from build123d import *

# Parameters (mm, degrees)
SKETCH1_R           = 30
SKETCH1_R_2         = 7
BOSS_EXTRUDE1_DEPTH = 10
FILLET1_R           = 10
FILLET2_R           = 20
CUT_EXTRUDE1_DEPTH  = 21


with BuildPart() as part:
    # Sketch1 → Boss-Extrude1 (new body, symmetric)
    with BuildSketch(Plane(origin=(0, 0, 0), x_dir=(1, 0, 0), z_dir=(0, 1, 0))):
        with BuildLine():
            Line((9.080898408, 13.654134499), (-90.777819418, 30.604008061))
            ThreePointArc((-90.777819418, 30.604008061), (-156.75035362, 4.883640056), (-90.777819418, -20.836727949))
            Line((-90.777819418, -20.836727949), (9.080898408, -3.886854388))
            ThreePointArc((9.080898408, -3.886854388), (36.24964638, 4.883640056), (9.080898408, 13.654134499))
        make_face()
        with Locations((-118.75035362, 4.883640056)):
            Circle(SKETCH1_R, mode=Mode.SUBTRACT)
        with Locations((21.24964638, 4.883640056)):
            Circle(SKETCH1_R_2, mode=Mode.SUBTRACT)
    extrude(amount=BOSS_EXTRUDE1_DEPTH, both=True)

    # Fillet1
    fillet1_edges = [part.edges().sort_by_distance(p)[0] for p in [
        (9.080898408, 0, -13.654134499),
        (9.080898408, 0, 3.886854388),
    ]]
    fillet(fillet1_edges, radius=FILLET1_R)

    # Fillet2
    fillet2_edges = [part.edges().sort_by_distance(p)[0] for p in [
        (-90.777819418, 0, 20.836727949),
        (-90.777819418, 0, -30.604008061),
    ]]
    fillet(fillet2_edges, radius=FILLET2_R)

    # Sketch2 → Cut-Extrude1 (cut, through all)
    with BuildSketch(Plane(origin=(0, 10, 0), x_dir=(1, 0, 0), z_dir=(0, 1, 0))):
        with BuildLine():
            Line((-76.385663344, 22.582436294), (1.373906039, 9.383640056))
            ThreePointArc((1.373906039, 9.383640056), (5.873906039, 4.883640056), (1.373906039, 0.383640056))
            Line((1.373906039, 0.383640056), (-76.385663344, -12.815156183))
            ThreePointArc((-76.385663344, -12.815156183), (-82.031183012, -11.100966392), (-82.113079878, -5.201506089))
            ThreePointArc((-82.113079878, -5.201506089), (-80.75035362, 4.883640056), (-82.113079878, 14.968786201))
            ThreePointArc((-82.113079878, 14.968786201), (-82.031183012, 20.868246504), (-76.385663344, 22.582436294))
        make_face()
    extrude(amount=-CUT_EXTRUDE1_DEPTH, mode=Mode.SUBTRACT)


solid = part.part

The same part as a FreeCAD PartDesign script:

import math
import FreeCAD as App
import Part
import Sketcher

V = App.Vector


def edges_at(feature, points):
    """Names of the edges that pass closest to the given points."""
    edges = feature.Shape.Edges
    near = lambda p: min(range(len(edges)), key=lambda i: edges[i].distToShape(Part.Vertex(*p))[0])
    return sorted({f"Edge{near(p) + 1}" for p in points})

doc = App.newDocument("Part")
body = doc.addObject("PartDesign::Body", "Body")

sketch1 = body.newObject("Sketcher::SketchObject", "Sketch")
sketch1.AttachmentSupport = (doc.getObject("XZ_Plane"), [""])
sketch1.MapMode = "FlatFace"
sketch1.addGeometry([
    Part.LineSegment(V(9.080898, -13.654134, 0), V(-90.777819, -30.604008, 0)),
    Part.ArcOfCircle(Part.Circle(V(-118.750354, -4.88364, 0), V(0, 0, 1), 38), math.radians(42.598118), math.radians(317.401882)),
    Part.LineSegment(V(-90.777819, 20.836728, 0), V(9.080898, 3.886854, 0)),
    Part.ArcOfCircle(Part.Circle(V(21.249646, -4.88364, 0), V(0, 0, 1), 15), math.radians(-144.218227), math.radians(144.218227)),
    Part.Circle(V(-118.750354, -4.88364, 0), V(0, 0, 1), 30),
    Part.Circle(V(21.249646, -4.88364, 0), V(0, 0, 1), 7),
], False)
sketch1.addConstraint([
    Sketcher.Constraint("Coincident", 0, 2, 1, 2),
    Sketcher.Constraint("Coincident", 1, 1, 2, 1),
    Sketcher.Constraint("Coincident", 2, 2, 3, 2),
    Sketcher.Constraint("Coincident", 3, 1, 0, 1),
    Sketcher.Constraint("Coincident", 4, 3, 1, 3),
    Sketcher.Constraint("Coincident", 5, 3, 3, 3),
    Sketcher.Constraint("Horizontal", 1, 3, 3, 3),
    Sketcher.Constraint("Vertical", 0, 2, 1, 1),
    Sketcher.Constraint("Vertical", 2, 2, 3, 1),
    Sketcher.Constraint("Diameter", 4, 60.0),
    Sketcher.Constraint("Diameter", 5, 14.0),
    Sketcher.Constraint("Radius", 1, 38.0),
    Sketcher.Constraint("Radius", 3, 15.0),
    Sketcher.Constraint("DistanceX", 1, 3, 3, 3, 140.0),
    Sketcher.Constraint("DistanceX", -1, 1, 2, 2, 9.080898),
    Sketcher.Constraint("DistanceY", 1, 3, -1, 1, 4.88364),
    Sketcher.Constraint("DistanceX", 0, 2, -1, 1, 90.777819),
    Sketcher.Constraint("DistanceY", 0, 2, -1, 1, 30.604008),
])
pad1 = body.newObject("PartDesign::Pad", "Pad")
pad1.Profile = sketch1
pad1.Length = 20
pad1.Midplane = True
doc.recompute()

fillet = body.newObject("PartDesign::Fillet", "Fillet")
fillet.Base = (pad1, edges_at(pad1, [(9.081, 0, -13.654), (9.081, 0, 3.887)]))
fillet.Radius = 10
doc.recompute()

fillet2 = body.newObject("PartDesign::Fillet", "Fillet001")
fillet2.Base = (fillet, edges_at(fillet, [(-90.778, 0, 20.837), (-90.778, 0, -30.604)]))
fillet2.Radius = 20

sketch2 = body.newObject("Sketcher::SketchObject", "Sketch001")
sketch2.AttachmentSupport = (doc.getObject("XZ_Plane"), [""])
sketch2.MapMode = "FlatFace"
sketch2.AttachmentOffset = App.Placement(V(0, 0, -10), App.Rotation())
sketch2.addGeometry([
    Part.LineSegment(V(1.373906, -9.38364, 0), V(-76.385663, -22.582436, 0)),
    Part.ArcOfCircle(Part.Circle(V(-78.035515, -17.86248, 0), V(0, 0, 1), 5), math.radians(144.638122), math.radians(289.26697)),
    Part.ArcOfCircle(Part.Circle(V(-118.750354, -4.88364, 0), V(0, 0, 1), 38), math.radians(-15.390638), math.radians(15.390638)),
    Part.ArcOfCircle(Part.Circle(V(-78.035515, 8.0952, 0), V(0, 0, 1), 5), math.radians(70.73303), math.radians(215.361878)),
    Part.LineSegment(V(-76.385663, 12.815156, 0), V(1.373906, -0.38364, 0)),
    Part.ArcOfCircle(Part.Circle(V(1.373906, -4.88364, 0), V(0, 0, 1), 4.5), math.radians(-90), math.radians(90)),
], False)
sketch2.addConstraint([
    Sketcher.Constraint("Coincident", 0, 2, 1, 2),
    Sketcher.Constraint("Coincident", 1, 1, 2, 1),
    Sketcher.Constraint("Coincident", 2, 2, 3, 2),
    Sketcher.Constraint("Coincident", 3, 1, 4, 1),
    Sketcher.Constraint("Coincident", 4, 2, 5, 2),
    Sketcher.Constraint("Coincident", 5, 1, 0, 1),
    Sketcher.Constraint("Equal", 1, 3),
    Sketcher.Constraint("Horizontal", 2, 3, 5, 3),
    Sketcher.Constraint("Vertical", 1, 3, 3, 3),
    Sketcher.Constraint("Vertical", 1, 1, 2, 2),
    Sketcher.Constraint("Vertical", 0, 2, 3, 1),
    Sketcher.Constraint("Vertical", 5, 3, 4, 2),
    Sketcher.Constraint("Vertical", 4, 2, 5, 1),
    Sketcher.Constraint("Radius", 1, 5.0),
    Sketcher.Constraint("Radius", 2, 38.0),
    Sketcher.Constraint("Radius", 5, 4.5),
    Sketcher.Constraint("DistanceY", -1, 1, 3, 3, 8.0952),
    Sketcher.Constraint("DistanceY", 1, 3, -1, 1, 17.86248),
    Sketcher.Constraint("DistanceX", 1, 1, -1, 1, 82.11308),
    Sketcher.Constraint("DistanceX", 2, 3, 1, 3, 40.714839),
    Sketcher.Constraint("DistanceX", 3, 3, 5, 3, 79.409421),
    Sketcher.Constraint("DistanceX", 1, 3, 0, 2, 1.649851),
])
pocket1 = body.newObject("PartDesign::Pocket", "Pocket")
pocket1.Profile = sketch2
pocket1.Type = "ThroughAll"
pocket1.Reversed = True

doc.recompute()
